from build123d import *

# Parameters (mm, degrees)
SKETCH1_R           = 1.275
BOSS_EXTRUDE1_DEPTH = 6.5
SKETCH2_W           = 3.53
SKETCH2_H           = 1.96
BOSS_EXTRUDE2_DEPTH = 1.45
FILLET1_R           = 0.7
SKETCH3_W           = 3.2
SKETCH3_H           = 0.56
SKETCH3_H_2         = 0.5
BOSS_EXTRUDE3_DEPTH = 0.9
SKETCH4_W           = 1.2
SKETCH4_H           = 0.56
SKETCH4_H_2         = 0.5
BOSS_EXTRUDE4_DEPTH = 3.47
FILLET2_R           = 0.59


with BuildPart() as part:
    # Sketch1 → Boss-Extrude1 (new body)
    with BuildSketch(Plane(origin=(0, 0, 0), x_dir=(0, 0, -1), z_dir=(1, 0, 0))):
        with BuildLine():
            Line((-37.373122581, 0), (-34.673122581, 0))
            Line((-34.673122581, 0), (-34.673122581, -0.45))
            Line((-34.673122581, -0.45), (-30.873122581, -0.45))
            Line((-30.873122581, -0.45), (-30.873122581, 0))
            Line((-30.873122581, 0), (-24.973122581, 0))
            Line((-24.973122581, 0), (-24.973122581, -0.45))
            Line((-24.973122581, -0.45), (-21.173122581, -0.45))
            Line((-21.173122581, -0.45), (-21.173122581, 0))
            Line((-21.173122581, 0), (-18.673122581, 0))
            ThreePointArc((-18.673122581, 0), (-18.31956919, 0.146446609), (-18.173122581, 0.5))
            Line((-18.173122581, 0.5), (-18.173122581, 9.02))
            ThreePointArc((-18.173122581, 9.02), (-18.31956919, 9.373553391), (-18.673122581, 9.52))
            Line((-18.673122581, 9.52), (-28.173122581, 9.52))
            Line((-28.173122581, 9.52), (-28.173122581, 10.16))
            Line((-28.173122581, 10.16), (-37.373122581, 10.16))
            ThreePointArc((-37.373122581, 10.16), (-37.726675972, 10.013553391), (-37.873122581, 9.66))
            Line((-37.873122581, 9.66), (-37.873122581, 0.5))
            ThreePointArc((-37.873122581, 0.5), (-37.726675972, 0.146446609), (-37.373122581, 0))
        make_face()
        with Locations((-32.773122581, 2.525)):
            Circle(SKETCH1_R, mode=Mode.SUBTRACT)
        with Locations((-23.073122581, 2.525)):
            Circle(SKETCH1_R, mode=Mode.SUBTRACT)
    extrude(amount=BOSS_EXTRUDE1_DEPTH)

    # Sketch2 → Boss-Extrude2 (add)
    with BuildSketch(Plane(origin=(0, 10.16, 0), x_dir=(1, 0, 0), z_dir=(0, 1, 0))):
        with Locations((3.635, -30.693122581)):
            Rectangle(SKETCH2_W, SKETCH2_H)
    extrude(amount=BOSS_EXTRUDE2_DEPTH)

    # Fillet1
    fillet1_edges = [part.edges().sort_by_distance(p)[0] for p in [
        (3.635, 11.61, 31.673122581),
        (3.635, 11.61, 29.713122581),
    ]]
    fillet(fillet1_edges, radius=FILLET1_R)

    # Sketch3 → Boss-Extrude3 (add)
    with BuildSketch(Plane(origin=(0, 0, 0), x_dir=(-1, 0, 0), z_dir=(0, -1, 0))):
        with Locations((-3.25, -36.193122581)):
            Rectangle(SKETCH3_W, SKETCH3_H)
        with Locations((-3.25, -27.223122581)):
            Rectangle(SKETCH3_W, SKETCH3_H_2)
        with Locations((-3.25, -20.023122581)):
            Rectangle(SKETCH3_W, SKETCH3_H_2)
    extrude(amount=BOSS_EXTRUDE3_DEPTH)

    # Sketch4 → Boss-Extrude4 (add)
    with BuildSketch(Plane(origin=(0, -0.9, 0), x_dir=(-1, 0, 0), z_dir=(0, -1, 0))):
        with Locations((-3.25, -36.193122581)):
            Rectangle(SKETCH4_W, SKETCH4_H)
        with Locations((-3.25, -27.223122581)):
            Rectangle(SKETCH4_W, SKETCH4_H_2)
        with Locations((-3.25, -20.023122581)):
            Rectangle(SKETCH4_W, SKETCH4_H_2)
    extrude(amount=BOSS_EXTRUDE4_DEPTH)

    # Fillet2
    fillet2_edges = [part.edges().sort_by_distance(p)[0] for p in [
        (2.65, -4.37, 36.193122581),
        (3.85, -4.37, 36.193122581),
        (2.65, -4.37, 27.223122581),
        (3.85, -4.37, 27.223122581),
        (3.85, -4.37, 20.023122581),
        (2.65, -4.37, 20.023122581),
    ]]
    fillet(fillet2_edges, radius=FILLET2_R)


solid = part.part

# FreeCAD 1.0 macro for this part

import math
import FreeCAD as App
import Part
import Sketcher
Q = App.Units.Quantity


def edges_at(feature, points):
    """Names of the edges that pass closest to the given points."""
    edges = feature.Shape.Edges
    near = lambda p: min(range(len(edges)), key=lambda i: edges[i].distToShape(Part.Vertex(*p))[0])
    return sorted({f"Edge{near(p) + 1}" for p in points})

doc = App.newDocument("Part")
body = doc.addObject("PartDesign::Body", "Body")

# Sketch on YZ plane
sketch1 = body.newObject("Sketcher::SketchObject", "Sketch")
sketch1.AttachmentSupport = (doc.getObject("YZ_Plane"), [""])
sketch1.MapMode = "FlatFace"
sketch1.addGeometry(Part.LineSegment(App.Vector(0, 37.37, 0), App.Vector(0, 34.67, 0)), False)
sketch1.addGeometry(Part.LineSegment(App.Vector(0, 34.67, 0), App.Vector(-0.45, 34.67, 0)), False)
sketch1.addGeometry(Part.LineSegment(App.Vector(-0.45, 34.67, 0), App.Vector(-0.45, 30.87, 0)), False)
sketch1.addGeometry(Part.LineSegment(App.Vector(-0.45, 30.87, 0), App.Vector(0, 30.87, 0)), False)
sketch1.addGeometry(Part.LineSegment(App.Vector(0, 30.87, 0), App.Vector(0, 24.97, 0)), False)
sketch1.addGeometry(Part.LineSegment(App.Vector(0, 24.97, 0), App.Vector(-0.45, 24.97, 0)), False)
sketch1.addGeometry(Part.LineSegment(App.Vector(-0.45, 24.97, 0), App.Vector(-0.45, 21.17, 0)), False)
sketch1.addGeometry(Part.LineSegment(App.Vector(-0.45, 21.17, 0), App.Vector(0, 21.17, 0)), False)
sketch1.addGeometry(Part.LineSegment(App.Vector(0, 21.17, 0), App.Vector(0, 18.67, 0)), False)
sketch1.addGeometry(Part.ArcOfCircle(Part.Circle(App.Vector(0.5, 18.67, 0), App.Vector(0, 0, 1), 0.5), math.radians(180), math.radians(270)), False)
sketch1.addGeometry(Part.LineSegment(App.Vector(0.5, 18.17, 0), App.Vector(9.02, 18.17, 0)), False)
sketch1.addGeometry(Part.ArcOfCircle(Part.Circle(App.Vector(9.02, 18.67, 0), App.Vector(0, 0, 1), 0.5), math.radians(-90), math.radians(0)), False)
sketch1.addGeometry(Part.LineSegment(App.Vector(9.52, 18.67, 0), App.Vector(9.52, 28.17, 0)), False)
sketch1.addGeometry(Part.LineSegment(App.Vector(9.52, 28.17, 0), App.Vector(10.16, 28.17, 0)), False)
sketch1.addGeometry(Part.LineSegment(App.Vector(10.16, 28.17, 0), App.Vector(10.16, 37.37, 0)), False)
sketch1.addGeometry(Part.ArcOfCircle(Part.Circle(App.Vector(9.66, 37.37, 0), App.Vector(0, 0, 1), 0.5), math.radians(0), math.radians(90)), False)
sketch1.addGeometry(Part.LineSegment(App.Vector(9.66, 37.87, 0), App.Vector(0.5, 37.87, 0)), False)
sketch1.addGeometry(Part.ArcOfCircle(Part.Circle(App.Vector(0.5, 37.37, 0), App.Vector(0, 0, 1), 0.5), math.radians(90), math.radians(180)), False)
sketch1.addGeometry(Part.Circle(App.Vector(2.52, 32.77, 0), App.Vector(0, 0, 1), 1.27), False)
sketch1.addGeometry(Part.Circle(App.Vector(2.52, 23.07, 0), App.Vector(0, 0, 1), 1.27), False)
sketch1.addConstraint(Sketcher.Constraint("Coincident", 0, 2, 1, 1))
sketch1.addConstraint(Sketcher.Constraint("Coincident", 1, 2, 2, 1))
sketch1.addConstraint(Sketcher.Constraint("Coincident", 2, 2, 3, 1))
sketch1.addConstraint(Sketcher.Constraint("Coincident", 3, 2, 4, 1))
sketch1.addConstraint(Sketcher.Constraint("Coincident", 4, 2, 5, 1))
sketch1.addConstraint(Sketcher.Constraint("Coincident", 5, 2, 6, 1))
sketch1.addConstraint(Sketcher.Constraint("Coincident", 6, 2, 7, 1))
sketch1.addConstraint(Sketcher.Constraint("Coincident", 7, 2, 8, 1))
sketch1.addConstraint(Sketcher.Constraint("Tangent", 8, 2, 9, 1))
sketch1.addConstraint(Sketcher.Constraint("Tangent", 9, 2, 10, 1))
sketch1.addConstraint(Sketcher.Constraint("Tangent", 10, 2, 11, 1))
sketch1.addConstraint(Sketcher.Constraint("Tangent", 11, 2, 12, 1))
sketch1.addConstraint(Sketcher.Constraint("Coincident", 12, 2, 13, 1))
sketch1.addConstraint(Sketcher.Constraint("Coincident", 13, 2, 14, 1))
sketch1.addConstraint(Sketcher.Constraint("Tangent", 14, 2, 15, 1))
sketch1.addConstraint(Sketcher.Constraint("Tangent", 15, 2, 16, 1))
sketch1.addConstraint(Sketcher.Constraint("Tangent", 16, 2, 17, 1))
sketch1.addConstraint(Sketcher.Constraint("Tangent", 17, 2, 0, 1))
sketch1.addConstraint(Sketcher.Constraint("Vertical", 0))
sketch1.addConstraint(Sketcher.Constraint("Horizontal", 1))
sketch1.addConstraint(Sketcher.Constraint("Vertical", 2))
sketch1.addConstraint(Sketcher.Constraint("Horizontal", 3))
sketch1.addConstraint(Sketcher.Constraint("Vertical", 4))
sketch1.addConstraint(Sketcher.Constraint("Horizontal", 5))
sketch1.addConstraint(Sketcher.Constraint("Vertical", 6))
sketch1.addConstraint(Sketcher.Constraint("Horizontal", 7))
sketch1.addConstraint(Sketcher.Constraint("Vertical", 8))
sketch1.addConstraint(Sketcher.Constraint("Horizontal", 10))
sketch1.addConstraint(Sketcher.Constraint("Vertical", 12))
sketch1.addConstraint(Sketcher.Constraint("Horizontal", 13))
sketch1.addConstraint(Sketcher.Constraint("Vertical", 14))
sketch1.addConstraint(Sketcher.Constraint("Horizontal", 16))
sketch1.addConstraint(Sketcher.Constraint("Equal", 9, 11))
sketch1.addConstraint(Sketcher.Constraint("Equal", 11, 15))
sketch1.addConstraint(Sketcher.Constraint("Equal", 15, 17))
sketch1.addConstraint(Sketcher.Constraint("Equal", 18, 19))
sketch1.addConstraint(Sketcher.Constraint("PointOnObject", 0, 2, -2))
sketch1.addConstraint(Sketcher.Constraint("PointOnObject", 3, 2, -2))
sketch1.addConstraint(Sketcher.Constraint("PointOnObject", 7, 2, -2))
sketch1.addConstraint(Sketcher.Constraint("Vertical", 18, 3, 19, 3))
sketch1.addConstraint(Sketcher.Constraint("Vertical", 2, 2, 5, 2))
sketch1.addConstraint(Sketcher.Constraint("Equal", 2, 6))
sketch1.addConstraint(Sketcher.Constraint("Radius", 9, Q("0.5 mm")))
sketch1.addConstraint(Sketcher.Constraint("Diameter", 18, Q("2.55 mm")))
sketch1.addConstraint(Sketcher.Constraint("DistanceY", 0, 2, 0, 1, Q("2.7 mm")))
sketch1.addConstraint(Sketcher.Constraint("DistanceY", 2, 2, 2, 1, Q("3.8 mm")))
sketch1.addConstraint(Sketcher.Constraint("DistanceY", 4, 2, 4, 1, Q("5.9 mm")))
sketch1.addConstraint(Sketcher.Constraint("DistanceY", 8, 2, 8, 1, Q("2.5 mm")))
sketch1.addConstraint(Sketcher.Constraint("DistanceY", 12, 1, 12, 2, Q("9.5 mm")))
sketch1.addConstraint(Sketcher.Constraint("DistanceX", 1, 2, 1, 1, Q("0.45 mm")))
sketch1.addConstraint(Sketcher.Constraint("DistanceX", 10, 1, 10, 2, Q("8.52 mm")))
sketch1.addConstraint(Sketcher.Constraint("DistanceX", 13, 1, 13, 2, Q("0.64 mm")))
sketch1.addConstraint(Sketcher.Constraint("DistanceY", 18, 3, 17, 3, Q("4.6 mm")))
sketch1.addConstraint(Sketcher.Constraint("DistanceY", 9, 3, 19, 3, Q("4.4 mm")))
sketch1.addConstraint(Sketcher.Constraint("DistanceX", -1, 1, 18, 3, Q("2.525 mm")))
sketch1.addConstraint(Sketcher.Constraint("DistanceY", -1, 1, 9, 3, Q("18.673123 mm")))
pad1 = body.newObject("PartDesign::Pad", "Pad")
pad1.Profile = sketch1
pad1.Length = 6.5

# Sketch on XZ plane
sketch2 = body.newObject("Sketcher::SketchObject", "Sketch001")
sketch2.AttachmentSupport = (doc.getObject("XZ_Plane"), [""])
sketch2.MapMode = "FlatFace"
sketch2.AttachmentOffset = App.Placement(App.Vector(0, 0, -10.16), App.Rotation())
sketch2.addGeometry(Part.LineSegment(App.Vector(1.9, 29.7, 0), App.Vector(1.9, 31.7, 0)), False)
sketch2.addGeometry(Part.LineSegment(App.Vector(1.9, 31.7, 0), App.Vector(5.4, 31.7, 0)), False)
sketch2.addGeometry(Part.LineSegment(App.Vector(5.4, 31.7, 0), App.Vector(5.4, 29.7, 0)), False)
sketch2.addGeometry(Part.LineSegment(App.Vector(5.4, 29.7, 0), App.Vector(1.9, 29.7, 0)), False)
sketch2.addConstraint(Sketcher.Constraint("Coincident", 0, 2, 1, 1))
sketch2.addConstraint(Sketcher.Constraint("Coincident", 1, 2, 2, 1))
sketch2.addConstraint(Sketcher.Constraint("Coincident", 2, 2, 3, 1))
sketch2.addConstraint(Sketcher.Constraint("Coincident", 3, 2, 0, 1))
sketch2.addConstraint(Sketcher.Constraint("Vertical", 0))
sketch2.addConstraint(Sketcher.Constraint("Horizontal", 1))
sketch2.addConstraint(Sketcher.Constraint("Vertical", 2))
sketch2.addConstraint(Sketcher.Constraint("Horizontal", 3))
sketch2.addConstraint(Sketcher.Constraint("DistanceX", 1, 1, 1, 2, Q("3.53 mm")))
sketch2.addConstraint(Sketcher.Constraint("DistanceY", 0, 1, 0, 2, Q("1.96 mm")))
sketch2.addConstraint(Sketcher.Constraint("DistanceX", -1, 1, 1, 2, Q("5.4 mm")))
sketch2.addConstraint(Sketcher.Constraint("DistanceY", -1, 1, 0, 2, Q("31.673123 mm")))
pad2 = body.newObject("PartDesign::Pad", "Pad001")
pad2.Profile = sketch2
pad2.Length = 1.45
pad2.Reversed = True
doc.recompute()

fillet = body.newObject("PartDesign::Fillet", "Fillet")
fillet.Base = (pad2, edges_at(pad2, [(3.635, 11.61, 31.673), (3.635, 11.61, 29.713)]))
fillet.Radius = 0.7

# Sketch on XZ plane
sketch3 = body.newObject("Sketcher::SketchObject", "Sketch002")
sketch3.AttachmentSupport = (doc.getObject("XZ_Plane"), [""])
sketch3.MapMode = "FlatFace"
sketch3.addGeometry(Part.LineSegment(App.Vector(4.8, 35.9, 0), App.Vector(4.8, 36.5, 0)), False)
sketch3.addGeometry(Part.LineSegment(App.Vector(4.8, 36.5, 0), App.Vector(1.6, 36.5, 0)), False)
sketch3.addGeometry(Part.LineSegment(App.Vector(1.6, 36.5, 0), App.Vector(1.6, 35.9, 0)), False)
sketch3.addGeometry(Part.LineSegment(App.Vector(1.6, 35.9, 0), App.Vector(4.8, 35.9, 0)), False)
sketch3.addGeometry(Part.LineSegment(App.Vector(4.8, 27, 0), App.Vector(4.8, 27.5, 0)), False)
sketch3.addGeometry(Part.LineSegment(App.Vector(4.8, 27.5, 0), App.Vector(1.6, 27.5, 0)), False)
sketch3.addGeometry(Part.LineSegment(App.Vector(1.6, 27.5, 0), App.Vector(1.6, 27, 0)), False)
sketch3.addGeometry(Part.LineSegment(App.Vector(1.6, 27, 0), App.Vector(4.8, 27, 0)), False)
sketch3.addGeometry(Part.LineSegment(App.Vector(4.8, 19.8, 0), App.Vector(4.8, 20.3, 0)), False)
sketch3.addGeometry(Part.LineSegment(App.Vector(4.8, 20.3, 0), App.Vector(1.6, 20.3, 0)), False)
sketch3.addGeometry(Part.LineSegment(App.Vector(1.6, 20.3, 0), App.Vector(1.6, 19.8, 0)), False)
sketch3.addGeometry(Part.LineSegment(App.Vector(1.6, 19.8, 0), App.Vector(4.8, 19.8, 0)), False)
sketch3.addConstraint(Sketcher.Constraint("Coincident", 0, 2, 1, 1))
sketch3.addConstraint(Sketcher.Constraint("Coincident", 1, 2, 2, 1))
sketch3.addConstraint(Sketcher.Constraint("Coincident", 2, 2, 3, 1))
sketch3.addConstraint(Sketcher.Constraint("Coincident", 3, 2, 0, 1))
sketch3.addConstraint(Sketcher.Constraint("Coincident", 4, 2, 5, 1))
sketch3.addConstraint(Sketcher.Constraint("Coincident", 5, 2, 6, 1))
sketch3.addConstraint(Sketcher.Constraint("Coincident", 6, 2, 7, 1))
sketch3.addConstraint(Sketcher.Constraint("Coincident", 7, 2, 4, 1))
sketch3.addConstraint(Sketcher.Constraint("Coincident", 8, 2, 9, 1))
sketch3.addConstraint(Sketcher.Constraint("Coincident", 9, 2, 10, 1))
sketch3.addConstraint(Sketcher.Constraint("Coincident", 10, 2, 11, 1))
sketch3.addConstraint(Sketcher.Constraint("Coincident", 11, 2, 8, 1))
sketch3.addConstraint(Sketcher.Constraint("Vertical", 0))
sketch3.addConstraint(Sketcher.Constraint("Horizontal", 1))
sketch3.addConstraint(Sketcher.Constraint("Vertical", 2))
sketch3.addConstraint(Sketcher.Constraint("Horizontal", 3))
sketch3.addConstraint(Sketcher.Constraint("Vertical", 4))
sketch3.addConstraint(Sketcher.Constraint("Horizontal", 5))
sketch3.addConstraint(Sketcher.Constraint("Vertical", 6))
sketch3.addConstraint(Sketcher.Constraint("Horizontal", 7))
sketch3.addConstraint(Sketcher.Constraint("Vertical", 8))
sketch3.addConstraint(Sketcher.Constraint("Horizontal", 9))
sketch3.addConstraint(Sketcher.Constraint("Vertical", 10))
sketch3.addConstraint(Sketcher.Constraint("Horizontal", 11))
sketch3.addConstraint(Sketcher.Constraint("Vertical", 3, 2, 4, 2))
sketch3.addConstraint(Sketcher.Constraint("Vertical", 2, 2, 5, 2))
sketch3.addConstraint(Sketcher.Constraint("Vertical", 7, 2, 8, 2))
sketch3.addConstraint(Sketcher.Constraint("Vertical", 6, 2, 9, 2))
sketch3.addConstraint(Sketcher.Constraint("Equal", 6, 8))
sketch3.addConstraint(Sketcher.Constraint("DistanceX", 1, 2, 1, 1, Q("3.2 mm")))
sketch3.addConstraint(Sketcher.Constraint("DistanceY", 4, 1, 4, 2, Q("0.5 mm")))
sketch3.addConstraint(Sketcher.Constraint("DistanceY", 4, 2, 0, 2, Q("9 mm")))
sketch3.addConstraint(Sketcher.Constraint("DistanceY", 0, 1, 0, 2, Q("0.56 mm")))
sketch3.addConstraint(Sketcher.Constraint("DistanceY", 8, 2, 7, 2, Q("6.7 mm")))
sketch3.addConstraint(Sketcher.Constraint("DistanceX", -1, 1, 0, 2, Q("4.85 mm")))
sketch3.addConstraint(Sketcher.Constraint("DistanceY", -1, 1, 0, 2, Q("36.473123 mm")))
pad3 = body.newObject("PartDesign::Pad", "Pad002")
pad3.Profile = sketch3
pad3.Length = 0.9

# Sketch on XZ plane
sketch4 = body.newObject("Sketcher::SketchObject", "Sketch003")
sketch4.AttachmentSupport = (doc.getObject("XZ_Plane"), [""])
sketch4.MapMode = "FlatFace"
sketch4.AttachmentOffset = App.Placement(App.Vector(0, 0, 0.9), App.Rotation())
sketch4.addGeometry(Part.LineSegment(App.Vector(3.9, 35.9, 0), App.Vector(3.9, 36.5, 0)), False)
sketch4.addGeometry(Part.LineSegment(App.Vector(3.9, 36.5, 0), App.Vector(2.6, 36.5, 0)), False)
sketch4.addGeometry(Part.LineSegment(App.Vector(2.6, 36.5, 0), App.Vector(2.6, 35.9, 0)), False)
sketch4.addGeometry(Part.LineSegment(App.Vector(2.6, 35.9, 0), App.Vector(3.9, 35.9, 0)), False)
sketch4.addGeometry(Part.LineSegment(App.Vector(3.9, 27, 0), App.Vector(3.9, 27.5, 0)), False)
sketch4.addGeometry(Part.LineSegment(App.Vector(3.9, 27.5, 0), App.Vector(2.6, 27.5, 0)), False)
sketch4.addGeometry(Part.LineSegment(App.Vector(2.6, 27.5, 0), App.Vector(2.6, 27, 0)), False)
sketch4.addGeometry(Part.LineSegment(App.Vector(2.6, 27, 0), App.Vector(3.9, 27, 0)), False)
sketch4.addGeometry(Part.LineSegment(App.Vector(3.9, 19.8, 0), App.Vector(3.9, 20.3, 0)), False)
sketch4.addGeometry(Part.LineSegment(App.Vector(3.9, 20.3, 0), App.Vector(2.6, 20.3, 0)), False)
sketch4.addGeometry(Part.LineSegment(App.Vector(2.6, 20.3, 0), App.Vector(2.6, 19.8, 0)), False)
sketch4.addGeometry(Part.LineSegment(App.Vector(2.6, 19.8, 0), App.Vector(3.9, 19.8, 0)), False)
sketch4.addConstraint(Sketcher.Constraint("Coincident", 0, 2, 1, 1))
sketch4.addConstraint(Sketcher.Constraint("Coincident", 1, 2, 2, 1))
sketch4.addConstraint(Sketcher.Constraint("Coincident", 2, 2, 3, 1))
sketch4.addConstraint(Sketcher.Constraint("Coincident", 3, 2, 0, 1))
sketch4.addConstraint(Sketcher.Constraint("Coincident", 4, 2, 5, 1))
sketch4.addConstraint(Sketcher.Constraint("Coincident", 5, 2, 6, 1))
sketch4.addConstraint(Sketcher.Constraint("Coincident", 6, 2, 7, 1))
sketch4.addConstraint(Sketcher.Constraint("Coincident", 7, 2, 4, 1))
sketch4.addConstraint(Sketcher.Constraint("Coincident", 8, 2, 9, 1))
sketch4.addConstraint(Sketcher.Constraint("Coincident", 9, 2, 10, 1))
sketch4.addConstraint(Sketcher.Constraint("Coincident", 10, 2, 11, 1))
sketch4.addConstraint(Sketcher.Constraint("Coincident", 11, 2, 8, 1))
sketch4.addConstraint(Sketcher.Constraint("Vertical", 0))
sketch4.addConstraint(Sketcher.Constraint("Horizontal", 1))
sketch4.addConstraint(Sketcher.Constraint("Vertical", 2))
sketch4.addConstraint(Sketcher.Constraint("Horizontal", 3))
sketch4.addConstraint(Sketcher.Constraint("Vertical", 4))
sketch4.addConstraint(Sketcher.Constraint("Horizontal", 5))
sketch4.addConstraint(Sketcher.Constraint("Vertical", 6))
sketch4.addConstraint(Sketcher.Constraint("Horizontal", 7))
sketch4.addConstraint(Sketcher.Constraint("Vertical", 8))
sketch4.addConstraint(Sketcher.Constraint("Horizontal", 9))
sketch4.addConstraint(Sketcher.Constraint("Vertical", 10))
sketch4.addConstraint(Sketcher.Constraint("Horizontal", 11))
sketch4.addConstraint(Sketcher.Constraint("Vertical", 3, 2, 4, 2))
sketch4.addConstraint(Sketcher.Constraint("Vertical", 2, 2, 5, 2))
sketch4.addConstraint(Sketcher.Constraint("Vertical", 7, 2, 8, 2))
sketch4.addConstraint(Sketcher.Constraint("Vertical", 6, 2, 9, 2))
sketch4.addConstraint(Sketcher.Constraint("Equal", 6, 8))
sketch4.addConstraint(Sketcher.Constraint("DistanceX", 1, 2, 1, 1, Q("1.2 mm")))
sketch4.addConstraint(Sketcher.Constraint("DistanceY", 4, 1, 4, 2, Q("0.5 mm")))
sketch4.addConstraint(Sketcher.Constraint("DistanceY", 4, 2, 0, 2, Q("9 mm")))
sketch4.addConstraint(Sketcher.Constraint("DistanceY", 0, 1, 0, 2, Q("0.56 mm")))
sketch4.addConstraint(Sketcher.Constraint("DistanceY", 8, 2, 7, 2, Q("6.7 mm")))
sketch4.addConstraint(Sketcher.Constraint("DistanceX", -1, 1, 0, 2, Q("3.85 mm")))
sketch4.addConstraint(Sketcher.Constraint("DistanceY", -1, 1, 0, 2, Q("36.473123 mm")))
pad4 = body.newObject("PartDesign::Pad", "Pad003")
pad4.Profile = sketch4
pad4.Length = 3.47
doc.recompute()

fillet2 = body.newObject("PartDesign::Fillet", "Fillet001")
fillet2.Base = (pad4, edges_at(pad4, [
    (2.65, -4.37, 36.193),
    (3.85, -4.37, 36.193),
    (2.65, -4.37, 27.223),
    (3.85, -4.37, 27.223),
    (3.85, -4.37, 20.023),
    (2.65, -4.37, 20.023),
]))
fillet2.Radius = 0.59

doc.recompute()
